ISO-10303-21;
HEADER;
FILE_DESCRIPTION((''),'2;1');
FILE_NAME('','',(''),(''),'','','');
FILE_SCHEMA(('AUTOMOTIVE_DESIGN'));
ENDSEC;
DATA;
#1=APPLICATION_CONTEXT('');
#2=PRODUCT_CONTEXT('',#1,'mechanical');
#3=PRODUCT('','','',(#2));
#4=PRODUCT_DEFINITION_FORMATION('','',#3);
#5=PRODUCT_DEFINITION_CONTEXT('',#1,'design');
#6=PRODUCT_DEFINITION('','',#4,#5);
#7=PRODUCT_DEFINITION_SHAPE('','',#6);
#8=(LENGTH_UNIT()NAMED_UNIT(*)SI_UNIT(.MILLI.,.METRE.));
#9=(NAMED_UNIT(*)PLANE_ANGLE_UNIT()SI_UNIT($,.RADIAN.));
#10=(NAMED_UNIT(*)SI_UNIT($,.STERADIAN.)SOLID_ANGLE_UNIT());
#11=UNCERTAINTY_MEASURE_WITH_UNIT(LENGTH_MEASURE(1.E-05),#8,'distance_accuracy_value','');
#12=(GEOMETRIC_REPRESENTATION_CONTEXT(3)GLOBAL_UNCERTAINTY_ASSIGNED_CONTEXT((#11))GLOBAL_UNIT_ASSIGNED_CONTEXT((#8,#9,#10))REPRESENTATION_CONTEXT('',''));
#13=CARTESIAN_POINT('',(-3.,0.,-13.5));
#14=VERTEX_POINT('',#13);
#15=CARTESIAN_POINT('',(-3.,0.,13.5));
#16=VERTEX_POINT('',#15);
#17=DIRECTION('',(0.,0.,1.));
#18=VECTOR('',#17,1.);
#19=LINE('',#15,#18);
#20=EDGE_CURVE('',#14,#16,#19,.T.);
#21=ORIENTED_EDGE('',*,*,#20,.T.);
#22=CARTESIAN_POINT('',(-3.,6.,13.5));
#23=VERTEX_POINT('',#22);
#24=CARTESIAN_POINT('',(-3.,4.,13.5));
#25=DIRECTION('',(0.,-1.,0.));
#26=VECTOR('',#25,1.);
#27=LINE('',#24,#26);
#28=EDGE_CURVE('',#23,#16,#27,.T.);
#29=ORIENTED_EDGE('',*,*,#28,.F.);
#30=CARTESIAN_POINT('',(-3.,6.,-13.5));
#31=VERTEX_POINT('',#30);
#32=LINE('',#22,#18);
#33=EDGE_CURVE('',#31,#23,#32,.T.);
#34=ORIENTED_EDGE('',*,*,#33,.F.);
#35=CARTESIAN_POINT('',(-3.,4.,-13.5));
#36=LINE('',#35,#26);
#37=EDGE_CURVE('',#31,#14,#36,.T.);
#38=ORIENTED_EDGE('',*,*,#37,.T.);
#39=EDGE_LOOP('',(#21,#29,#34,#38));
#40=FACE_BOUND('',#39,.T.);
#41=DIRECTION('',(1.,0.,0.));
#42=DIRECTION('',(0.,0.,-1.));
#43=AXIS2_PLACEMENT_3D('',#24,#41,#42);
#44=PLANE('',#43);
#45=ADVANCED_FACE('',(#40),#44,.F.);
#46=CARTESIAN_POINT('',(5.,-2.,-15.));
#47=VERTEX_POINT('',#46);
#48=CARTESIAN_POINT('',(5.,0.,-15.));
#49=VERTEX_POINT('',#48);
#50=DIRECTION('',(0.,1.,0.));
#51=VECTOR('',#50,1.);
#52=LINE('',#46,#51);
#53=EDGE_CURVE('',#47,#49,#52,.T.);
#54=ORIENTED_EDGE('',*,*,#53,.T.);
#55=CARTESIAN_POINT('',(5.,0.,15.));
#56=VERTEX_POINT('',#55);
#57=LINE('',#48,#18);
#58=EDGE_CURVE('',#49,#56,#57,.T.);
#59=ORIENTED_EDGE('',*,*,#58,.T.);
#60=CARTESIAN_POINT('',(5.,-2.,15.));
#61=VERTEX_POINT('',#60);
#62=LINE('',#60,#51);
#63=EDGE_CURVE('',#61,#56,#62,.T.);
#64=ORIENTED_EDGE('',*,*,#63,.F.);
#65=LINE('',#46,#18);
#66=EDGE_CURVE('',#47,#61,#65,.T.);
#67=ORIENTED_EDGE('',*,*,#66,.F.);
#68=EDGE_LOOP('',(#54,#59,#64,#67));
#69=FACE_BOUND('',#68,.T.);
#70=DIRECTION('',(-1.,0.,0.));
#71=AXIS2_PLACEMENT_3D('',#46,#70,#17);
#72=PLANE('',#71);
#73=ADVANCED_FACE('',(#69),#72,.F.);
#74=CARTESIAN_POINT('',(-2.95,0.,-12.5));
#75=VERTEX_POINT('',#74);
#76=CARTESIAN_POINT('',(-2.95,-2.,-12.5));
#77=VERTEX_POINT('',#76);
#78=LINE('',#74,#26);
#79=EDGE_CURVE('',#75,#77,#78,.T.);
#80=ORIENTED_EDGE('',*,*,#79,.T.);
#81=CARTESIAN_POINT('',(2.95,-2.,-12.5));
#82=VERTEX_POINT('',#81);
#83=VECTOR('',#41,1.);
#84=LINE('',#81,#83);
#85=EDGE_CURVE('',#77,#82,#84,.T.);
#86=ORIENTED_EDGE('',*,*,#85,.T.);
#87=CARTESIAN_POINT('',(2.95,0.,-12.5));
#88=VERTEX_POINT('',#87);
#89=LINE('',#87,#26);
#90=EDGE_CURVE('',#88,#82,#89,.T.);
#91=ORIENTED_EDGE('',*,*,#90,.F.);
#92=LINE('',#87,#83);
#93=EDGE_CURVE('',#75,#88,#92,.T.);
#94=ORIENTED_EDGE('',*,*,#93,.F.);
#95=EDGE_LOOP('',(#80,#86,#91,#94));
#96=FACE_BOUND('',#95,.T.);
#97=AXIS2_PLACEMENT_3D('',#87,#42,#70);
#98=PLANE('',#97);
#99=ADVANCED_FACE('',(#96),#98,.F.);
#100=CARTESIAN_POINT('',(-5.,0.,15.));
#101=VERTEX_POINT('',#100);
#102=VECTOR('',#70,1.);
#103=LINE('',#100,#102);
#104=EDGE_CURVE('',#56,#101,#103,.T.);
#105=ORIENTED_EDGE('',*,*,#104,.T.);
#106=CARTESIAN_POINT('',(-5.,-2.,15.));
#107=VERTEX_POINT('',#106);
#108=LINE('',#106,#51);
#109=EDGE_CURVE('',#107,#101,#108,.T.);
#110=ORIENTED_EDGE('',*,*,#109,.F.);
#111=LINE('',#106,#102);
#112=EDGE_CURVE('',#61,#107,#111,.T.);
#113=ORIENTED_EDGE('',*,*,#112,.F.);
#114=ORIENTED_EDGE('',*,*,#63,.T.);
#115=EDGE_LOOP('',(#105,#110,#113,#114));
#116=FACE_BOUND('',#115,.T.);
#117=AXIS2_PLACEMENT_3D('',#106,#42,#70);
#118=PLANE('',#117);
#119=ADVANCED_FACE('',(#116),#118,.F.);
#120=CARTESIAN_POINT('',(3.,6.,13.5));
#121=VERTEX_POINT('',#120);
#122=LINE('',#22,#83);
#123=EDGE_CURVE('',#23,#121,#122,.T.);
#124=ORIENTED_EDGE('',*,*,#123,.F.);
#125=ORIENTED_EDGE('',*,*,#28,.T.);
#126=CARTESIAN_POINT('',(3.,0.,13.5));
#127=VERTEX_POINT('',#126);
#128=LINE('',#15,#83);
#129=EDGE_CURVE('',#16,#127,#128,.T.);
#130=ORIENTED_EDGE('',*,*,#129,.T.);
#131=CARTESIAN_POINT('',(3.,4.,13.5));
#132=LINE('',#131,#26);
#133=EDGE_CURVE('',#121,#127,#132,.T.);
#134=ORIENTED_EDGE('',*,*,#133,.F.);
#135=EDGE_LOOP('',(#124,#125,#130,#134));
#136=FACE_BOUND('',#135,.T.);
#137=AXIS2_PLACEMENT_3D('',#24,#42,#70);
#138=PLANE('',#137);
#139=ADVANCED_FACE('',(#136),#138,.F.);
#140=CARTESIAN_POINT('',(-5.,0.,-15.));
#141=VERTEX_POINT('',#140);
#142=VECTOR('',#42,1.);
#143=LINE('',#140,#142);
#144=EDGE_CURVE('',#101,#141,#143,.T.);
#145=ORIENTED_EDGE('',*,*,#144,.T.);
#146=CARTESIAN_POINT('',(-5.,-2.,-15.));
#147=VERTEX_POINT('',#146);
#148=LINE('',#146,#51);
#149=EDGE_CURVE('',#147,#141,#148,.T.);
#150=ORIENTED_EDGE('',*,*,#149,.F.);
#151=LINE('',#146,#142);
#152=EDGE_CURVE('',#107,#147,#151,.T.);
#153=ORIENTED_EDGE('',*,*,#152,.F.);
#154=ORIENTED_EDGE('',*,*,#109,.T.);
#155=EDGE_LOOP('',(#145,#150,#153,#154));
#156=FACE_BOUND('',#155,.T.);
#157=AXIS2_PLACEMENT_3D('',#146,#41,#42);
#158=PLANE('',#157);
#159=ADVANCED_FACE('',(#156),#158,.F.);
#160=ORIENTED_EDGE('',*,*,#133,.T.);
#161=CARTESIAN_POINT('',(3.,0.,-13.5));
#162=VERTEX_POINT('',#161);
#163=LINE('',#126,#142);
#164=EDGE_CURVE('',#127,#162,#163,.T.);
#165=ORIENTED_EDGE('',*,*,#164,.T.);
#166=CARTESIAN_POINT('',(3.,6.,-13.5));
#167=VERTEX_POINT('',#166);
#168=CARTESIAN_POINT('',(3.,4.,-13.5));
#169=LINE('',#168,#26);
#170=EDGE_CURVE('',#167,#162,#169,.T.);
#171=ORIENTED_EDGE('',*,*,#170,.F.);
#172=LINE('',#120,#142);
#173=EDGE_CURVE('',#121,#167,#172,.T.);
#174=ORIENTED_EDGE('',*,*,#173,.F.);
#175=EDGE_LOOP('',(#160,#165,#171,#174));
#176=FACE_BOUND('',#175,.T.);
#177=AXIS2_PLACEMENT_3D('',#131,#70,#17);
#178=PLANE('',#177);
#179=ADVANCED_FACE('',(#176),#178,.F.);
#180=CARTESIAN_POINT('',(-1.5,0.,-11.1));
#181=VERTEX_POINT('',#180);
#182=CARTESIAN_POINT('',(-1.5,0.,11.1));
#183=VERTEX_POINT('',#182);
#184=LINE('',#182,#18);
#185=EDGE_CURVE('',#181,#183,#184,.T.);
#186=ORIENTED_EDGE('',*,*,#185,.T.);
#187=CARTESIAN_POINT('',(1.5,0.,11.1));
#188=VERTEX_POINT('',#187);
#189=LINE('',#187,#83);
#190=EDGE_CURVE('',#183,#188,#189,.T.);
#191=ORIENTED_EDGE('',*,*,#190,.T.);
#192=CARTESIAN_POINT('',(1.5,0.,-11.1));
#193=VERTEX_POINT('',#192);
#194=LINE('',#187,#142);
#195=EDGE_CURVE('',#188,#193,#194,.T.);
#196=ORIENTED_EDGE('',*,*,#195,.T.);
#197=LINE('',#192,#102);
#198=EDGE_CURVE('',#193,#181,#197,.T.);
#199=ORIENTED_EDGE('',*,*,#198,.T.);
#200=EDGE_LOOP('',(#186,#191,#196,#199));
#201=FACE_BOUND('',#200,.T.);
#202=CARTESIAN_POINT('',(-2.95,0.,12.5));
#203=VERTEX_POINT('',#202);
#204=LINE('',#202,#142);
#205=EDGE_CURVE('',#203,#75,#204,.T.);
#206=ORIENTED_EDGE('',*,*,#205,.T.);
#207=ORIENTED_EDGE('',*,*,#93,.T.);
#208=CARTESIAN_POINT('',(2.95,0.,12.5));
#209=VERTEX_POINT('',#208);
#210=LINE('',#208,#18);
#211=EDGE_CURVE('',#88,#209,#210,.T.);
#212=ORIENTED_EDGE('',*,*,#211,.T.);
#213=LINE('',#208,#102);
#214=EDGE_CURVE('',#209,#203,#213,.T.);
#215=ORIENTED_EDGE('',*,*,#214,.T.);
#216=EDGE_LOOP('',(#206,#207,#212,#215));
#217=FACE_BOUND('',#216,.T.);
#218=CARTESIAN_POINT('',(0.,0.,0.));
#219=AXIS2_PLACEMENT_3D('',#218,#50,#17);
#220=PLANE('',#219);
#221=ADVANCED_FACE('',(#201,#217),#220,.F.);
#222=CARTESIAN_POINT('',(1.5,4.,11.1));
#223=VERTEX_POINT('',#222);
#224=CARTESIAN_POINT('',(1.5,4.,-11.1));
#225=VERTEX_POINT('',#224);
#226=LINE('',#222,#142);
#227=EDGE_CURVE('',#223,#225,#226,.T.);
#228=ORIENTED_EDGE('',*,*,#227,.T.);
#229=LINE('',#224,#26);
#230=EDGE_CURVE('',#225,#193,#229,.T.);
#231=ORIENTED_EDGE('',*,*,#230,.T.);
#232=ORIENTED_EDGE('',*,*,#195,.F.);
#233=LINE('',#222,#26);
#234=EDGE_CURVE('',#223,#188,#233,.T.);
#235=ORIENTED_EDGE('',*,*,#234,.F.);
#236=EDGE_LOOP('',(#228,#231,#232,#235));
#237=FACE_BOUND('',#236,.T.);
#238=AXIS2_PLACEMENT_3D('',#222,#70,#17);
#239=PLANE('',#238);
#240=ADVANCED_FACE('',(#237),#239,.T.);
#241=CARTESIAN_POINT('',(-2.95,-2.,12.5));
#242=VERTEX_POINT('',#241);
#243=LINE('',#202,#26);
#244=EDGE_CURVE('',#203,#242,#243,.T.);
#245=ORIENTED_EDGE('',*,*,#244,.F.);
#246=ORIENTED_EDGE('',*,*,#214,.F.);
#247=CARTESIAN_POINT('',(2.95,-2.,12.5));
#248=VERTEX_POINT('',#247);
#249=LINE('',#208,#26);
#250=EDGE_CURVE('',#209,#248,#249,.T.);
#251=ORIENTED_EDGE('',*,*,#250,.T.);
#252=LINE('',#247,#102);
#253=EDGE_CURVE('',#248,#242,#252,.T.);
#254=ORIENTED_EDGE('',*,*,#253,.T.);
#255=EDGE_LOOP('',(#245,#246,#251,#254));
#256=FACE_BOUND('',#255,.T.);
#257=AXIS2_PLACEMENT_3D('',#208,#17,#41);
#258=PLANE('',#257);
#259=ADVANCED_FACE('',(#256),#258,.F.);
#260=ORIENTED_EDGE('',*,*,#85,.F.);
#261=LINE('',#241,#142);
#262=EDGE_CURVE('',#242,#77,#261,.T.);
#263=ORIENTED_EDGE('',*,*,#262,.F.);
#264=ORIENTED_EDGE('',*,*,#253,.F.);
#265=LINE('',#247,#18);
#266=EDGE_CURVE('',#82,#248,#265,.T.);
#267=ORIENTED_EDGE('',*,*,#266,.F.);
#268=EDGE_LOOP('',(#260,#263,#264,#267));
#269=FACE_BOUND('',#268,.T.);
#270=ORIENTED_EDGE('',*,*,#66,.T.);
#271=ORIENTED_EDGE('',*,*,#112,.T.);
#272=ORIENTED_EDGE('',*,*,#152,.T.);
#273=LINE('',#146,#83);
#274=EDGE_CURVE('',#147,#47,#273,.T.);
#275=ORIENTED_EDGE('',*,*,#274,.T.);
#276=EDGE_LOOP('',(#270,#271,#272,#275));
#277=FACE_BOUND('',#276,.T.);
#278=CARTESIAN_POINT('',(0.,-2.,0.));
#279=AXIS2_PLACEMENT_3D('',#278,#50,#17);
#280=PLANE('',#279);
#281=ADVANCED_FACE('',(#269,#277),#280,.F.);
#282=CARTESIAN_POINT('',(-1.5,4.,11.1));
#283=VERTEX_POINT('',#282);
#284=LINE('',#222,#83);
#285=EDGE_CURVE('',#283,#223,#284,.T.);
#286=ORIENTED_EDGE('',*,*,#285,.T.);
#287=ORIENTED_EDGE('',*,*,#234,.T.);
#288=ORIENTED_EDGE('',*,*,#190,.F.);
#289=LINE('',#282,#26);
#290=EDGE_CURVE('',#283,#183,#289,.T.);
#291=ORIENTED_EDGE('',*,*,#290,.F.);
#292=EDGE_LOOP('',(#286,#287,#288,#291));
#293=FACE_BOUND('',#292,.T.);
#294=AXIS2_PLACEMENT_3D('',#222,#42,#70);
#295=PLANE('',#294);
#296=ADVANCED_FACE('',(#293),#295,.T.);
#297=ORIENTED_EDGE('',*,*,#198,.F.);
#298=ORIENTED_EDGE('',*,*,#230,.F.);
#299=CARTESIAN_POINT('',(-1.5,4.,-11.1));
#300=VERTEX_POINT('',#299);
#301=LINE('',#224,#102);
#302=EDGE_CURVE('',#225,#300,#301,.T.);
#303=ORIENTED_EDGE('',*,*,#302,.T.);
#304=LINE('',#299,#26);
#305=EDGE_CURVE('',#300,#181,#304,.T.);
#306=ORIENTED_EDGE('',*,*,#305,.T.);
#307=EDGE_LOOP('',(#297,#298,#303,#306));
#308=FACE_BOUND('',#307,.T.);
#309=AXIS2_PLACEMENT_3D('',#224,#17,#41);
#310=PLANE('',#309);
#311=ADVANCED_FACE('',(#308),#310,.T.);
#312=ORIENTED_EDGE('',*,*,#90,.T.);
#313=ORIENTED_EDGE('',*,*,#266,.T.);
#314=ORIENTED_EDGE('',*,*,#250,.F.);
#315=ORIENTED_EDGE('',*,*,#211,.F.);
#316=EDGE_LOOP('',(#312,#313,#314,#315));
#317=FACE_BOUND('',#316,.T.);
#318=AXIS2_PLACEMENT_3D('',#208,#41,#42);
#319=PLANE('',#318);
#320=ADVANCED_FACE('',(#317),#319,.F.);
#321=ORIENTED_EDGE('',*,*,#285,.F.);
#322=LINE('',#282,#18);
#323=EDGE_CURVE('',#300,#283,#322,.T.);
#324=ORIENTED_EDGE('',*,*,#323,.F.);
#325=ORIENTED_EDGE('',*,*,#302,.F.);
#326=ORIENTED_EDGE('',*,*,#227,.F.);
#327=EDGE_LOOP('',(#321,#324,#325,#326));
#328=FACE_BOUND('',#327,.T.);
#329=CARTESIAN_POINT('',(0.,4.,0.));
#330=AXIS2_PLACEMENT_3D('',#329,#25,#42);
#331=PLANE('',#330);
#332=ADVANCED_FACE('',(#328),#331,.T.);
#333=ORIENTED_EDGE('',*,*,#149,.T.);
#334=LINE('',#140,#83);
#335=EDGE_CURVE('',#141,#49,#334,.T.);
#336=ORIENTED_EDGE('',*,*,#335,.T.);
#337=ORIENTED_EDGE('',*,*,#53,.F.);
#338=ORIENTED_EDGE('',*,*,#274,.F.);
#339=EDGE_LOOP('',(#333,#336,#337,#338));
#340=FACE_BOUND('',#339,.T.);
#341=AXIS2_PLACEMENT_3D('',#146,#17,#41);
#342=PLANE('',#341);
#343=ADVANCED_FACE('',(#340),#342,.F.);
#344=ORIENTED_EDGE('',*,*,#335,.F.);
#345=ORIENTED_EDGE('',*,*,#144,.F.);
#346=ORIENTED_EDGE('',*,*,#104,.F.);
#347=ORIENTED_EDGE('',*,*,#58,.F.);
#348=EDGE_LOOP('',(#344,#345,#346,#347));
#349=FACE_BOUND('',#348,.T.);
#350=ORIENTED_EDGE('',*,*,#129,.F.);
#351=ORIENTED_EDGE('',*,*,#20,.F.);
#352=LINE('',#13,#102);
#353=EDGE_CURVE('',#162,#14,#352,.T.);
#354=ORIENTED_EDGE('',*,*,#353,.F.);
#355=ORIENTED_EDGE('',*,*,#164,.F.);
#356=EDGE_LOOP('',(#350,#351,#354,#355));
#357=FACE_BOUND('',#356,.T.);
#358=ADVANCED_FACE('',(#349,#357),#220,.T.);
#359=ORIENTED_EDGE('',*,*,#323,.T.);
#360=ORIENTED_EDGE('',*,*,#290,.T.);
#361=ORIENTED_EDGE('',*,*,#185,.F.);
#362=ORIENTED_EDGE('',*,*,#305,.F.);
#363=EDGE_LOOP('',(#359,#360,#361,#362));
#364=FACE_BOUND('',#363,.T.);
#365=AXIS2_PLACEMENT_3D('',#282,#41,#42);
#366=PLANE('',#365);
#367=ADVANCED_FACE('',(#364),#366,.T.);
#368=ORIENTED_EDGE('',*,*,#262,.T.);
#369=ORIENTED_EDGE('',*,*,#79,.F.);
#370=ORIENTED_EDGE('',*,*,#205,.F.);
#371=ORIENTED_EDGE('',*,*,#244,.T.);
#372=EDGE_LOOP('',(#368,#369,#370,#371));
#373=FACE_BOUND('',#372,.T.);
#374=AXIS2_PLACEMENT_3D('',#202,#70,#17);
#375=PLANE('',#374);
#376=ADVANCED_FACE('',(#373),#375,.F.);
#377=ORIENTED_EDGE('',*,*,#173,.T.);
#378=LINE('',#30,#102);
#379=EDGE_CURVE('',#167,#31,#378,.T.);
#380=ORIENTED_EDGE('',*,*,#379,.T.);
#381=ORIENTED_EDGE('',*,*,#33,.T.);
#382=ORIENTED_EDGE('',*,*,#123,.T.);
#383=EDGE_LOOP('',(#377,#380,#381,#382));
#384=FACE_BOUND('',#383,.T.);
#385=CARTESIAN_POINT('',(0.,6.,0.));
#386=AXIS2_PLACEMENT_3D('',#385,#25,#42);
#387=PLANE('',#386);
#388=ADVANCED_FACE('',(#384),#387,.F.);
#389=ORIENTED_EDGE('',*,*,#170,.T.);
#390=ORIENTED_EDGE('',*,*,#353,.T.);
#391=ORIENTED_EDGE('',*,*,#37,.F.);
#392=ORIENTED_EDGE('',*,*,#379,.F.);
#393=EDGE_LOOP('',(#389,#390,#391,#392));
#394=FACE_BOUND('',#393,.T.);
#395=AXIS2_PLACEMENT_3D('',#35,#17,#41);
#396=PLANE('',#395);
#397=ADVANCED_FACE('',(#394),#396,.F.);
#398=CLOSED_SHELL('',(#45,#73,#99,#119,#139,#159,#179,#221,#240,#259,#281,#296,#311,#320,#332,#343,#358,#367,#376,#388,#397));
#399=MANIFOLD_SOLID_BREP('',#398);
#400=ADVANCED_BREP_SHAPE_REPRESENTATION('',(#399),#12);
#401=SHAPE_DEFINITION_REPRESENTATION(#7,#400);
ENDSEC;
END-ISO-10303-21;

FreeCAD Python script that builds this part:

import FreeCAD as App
import Part
import Sketcher
Q = App.Units.Quantity


def add_polygon(sketch, points):
    """Adds a closed chain of lines whose ends are joined by coincident constraints."""
    first, n = sketch.GeometryCount, len(points)
    for a, b in zip(points, points[1:] + points[:1]):
        sketch.addGeometry(Part.LineSegment(App.Vector(*a, 0), App.Vector(*b, 0)), False)
    for i in range(n):
        sketch.addConstraint(Sketcher.Constraint("Coincident", first + i, 2, first + (i + 1) % n, 1))

doc = App.newDocument("Part")
body = doc.addObject("PartDesign::Body", "Body")

sketch1 = doc.addObject("Sketcher::SketchObject", "Sketch")
body.addObject(sketch1)
sketch1.AttachmentSupport = (doc.XZ_Plane, [""])
sketch1.MapMode = "FlatFace"
add_polygon(sketch1, [(-3, -13.5), (-3, 13.5), (3, 13.5), (3, -13.5)])
add_polygon(sketch1, [(1.5, 11.1), (-1.5, 11.1), (-1.5, -11.1), (1.5, -11.1)])
sketch1.addConstraint([
    Sketcher.Constraint("Vertical", 0),
    Sketcher.Constraint("Horizontal", 1),
    Sketcher.Constraint("Vertical", 2),
    Sketcher.Constraint("Horizontal", 3),
    Sketcher.Constraint("Horizontal", 4),
    Sketcher.Constraint("Vertical", 5),
    Sketcher.Constraint("Horizontal", 6),
    Sketcher.Constraint("Vertical", 7),
    Sketcher.Constraint("Symmetric", 0, 2, 2, 2, -1, 1),
    Sketcher.Constraint("Symmetric", 4, 2, 6, 2, -1, 1),
    Sketcher.Constraint("DistanceX", 1, 1, 1, 2, Q("6 mm")),
    Sketcher.Constraint("DistanceX", 4, 2, 4, 1, Q("3 mm")),
    Sketcher.Constraint("DistanceY", 0, 1, 0, 2, Q("27 mm")),
    Sketcher.Constraint("DistanceY", 5, 2, 5, 1, Q("22.2 mm")),
])
pad1 = doc.addObject("PartDesign::Pad", "Pad")
body.addObject(pad1)
pad1.Profile = sketch1
pad1.Length = 4
pad1.Reversed = True

sketch2 = doc.addObject("Sketcher::SketchObject", "Sketch001")
body.addObject(sketch2)
sketch2.AttachmentSupport = (doc.XZ_Plane, [""])
sketch2.MapMode = "FlatFace"
sketch2.AttachmentOffset = App.Placement(App.Vector(0, 0, -4), App.Rotation())
add_polygon(sketch2, [(-3, -13.5), (-3, 13.5), (3, 13.5), (3, -13.5)])
sketch2.addConstraint([
    Sketcher.Constraint("Vertical", 0),
    Sketcher.Constraint("Horizontal", 1),
    Sketcher.Constraint("Vertical", 2),
    Sketcher.Constraint("Horizontal", 3),
    Sketcher.Constraint("Symmetric", 0, 2, 2, 2, -1, 1),
    Sketcher.Constraint("DistanceX", 1, 1, 1, 2, Q("6 mm")),
    Sketcher.Constraint("DistanceY", 0, 1, 0, 2, Q("27 mm")),
])
pad2 = doc.addObject("PartDesign::Pad", "Pad001")
body.addObject(pad2)
pad2.Profile = sketch2
pad2.Length = 2
pad2.Reversed = True

sketch3 = doc.addObject("Sketcher::SketchObject", "Sketch002")
body.addObject(sketch3)
sketch3.AttachmentSupport = (doc.XZ_Plane, [""])
sketch3.MapMode = "FlatFace"
add_polygon(sketch3, [(-5, 15), (-5, -15), (5, -15), (5, 15)])
sketch3.addConstraint([
    Sketcher.Constraint("Vertical", 0),
    Sketcher.Constraint("Horizontal", 1),
    Sketcher.Constraint("Vertical", 2),
    Sketcher.Constraint("Horizontal", 3),
    Sketcher.Constraint("Symmetric", 0, 2, 2, 2, -1, 1),
    Sketcher.Constraint("DistanceX", 1, 1, 1, 2, Q("10 mm")),
    Sketcher.Constraint("DistanceY", 0, 2, 0, 1, Q("30 mm")),
])
pad3 = doc.addObject("PartDesign::Pad", "Pad002")
body.addObject(pad3)
pad3.Profile = sketch3
pad3.Length = 2

sketch4 = doc.addObject("Sketcher::SketchObject", "Sketch003")
body.addObject(sketch4)
sketch4.AttachmentSupport = (doc.XZ_Plane, [""])
sketch4.MapMode = "FlatFace"
sketch4.AttachmentOffset = App.Placement(App.Vector(0, 0, 2), App.Rotation())
add_polygon(sketch4, [(-2.95, 12.5), (-2.95, -12.5), (2.95, -12.5), (2.95, 12.5)])
sketch4.addConstraint([
    Sketcher.Constraint("Vertical", 0),
    Sketcher.Constraint("Horizontal", 1),
    Sketcher.Constraint("Vertical", 2),
    Sketcher.Constraint("Horizontal", 3),
    Sketcher.Constraint("Symmetric", 0, 2, 2, 2, -1, 1),
    Sketcher.Constraint("DistanceY", 0, 2, 0, 1, Q("25 mm")),
    Sketcher.Constraint("DistanceX", 1, 1, 1, 2, Q("5.9 mm")),
])
pocket1 = doc.addObject("PartDesign::Pocket", "Pocket")
body.addObject(pocket1)
pocket1.Profile = sketch4
pocket1.Length = 2

doc.recompute()
